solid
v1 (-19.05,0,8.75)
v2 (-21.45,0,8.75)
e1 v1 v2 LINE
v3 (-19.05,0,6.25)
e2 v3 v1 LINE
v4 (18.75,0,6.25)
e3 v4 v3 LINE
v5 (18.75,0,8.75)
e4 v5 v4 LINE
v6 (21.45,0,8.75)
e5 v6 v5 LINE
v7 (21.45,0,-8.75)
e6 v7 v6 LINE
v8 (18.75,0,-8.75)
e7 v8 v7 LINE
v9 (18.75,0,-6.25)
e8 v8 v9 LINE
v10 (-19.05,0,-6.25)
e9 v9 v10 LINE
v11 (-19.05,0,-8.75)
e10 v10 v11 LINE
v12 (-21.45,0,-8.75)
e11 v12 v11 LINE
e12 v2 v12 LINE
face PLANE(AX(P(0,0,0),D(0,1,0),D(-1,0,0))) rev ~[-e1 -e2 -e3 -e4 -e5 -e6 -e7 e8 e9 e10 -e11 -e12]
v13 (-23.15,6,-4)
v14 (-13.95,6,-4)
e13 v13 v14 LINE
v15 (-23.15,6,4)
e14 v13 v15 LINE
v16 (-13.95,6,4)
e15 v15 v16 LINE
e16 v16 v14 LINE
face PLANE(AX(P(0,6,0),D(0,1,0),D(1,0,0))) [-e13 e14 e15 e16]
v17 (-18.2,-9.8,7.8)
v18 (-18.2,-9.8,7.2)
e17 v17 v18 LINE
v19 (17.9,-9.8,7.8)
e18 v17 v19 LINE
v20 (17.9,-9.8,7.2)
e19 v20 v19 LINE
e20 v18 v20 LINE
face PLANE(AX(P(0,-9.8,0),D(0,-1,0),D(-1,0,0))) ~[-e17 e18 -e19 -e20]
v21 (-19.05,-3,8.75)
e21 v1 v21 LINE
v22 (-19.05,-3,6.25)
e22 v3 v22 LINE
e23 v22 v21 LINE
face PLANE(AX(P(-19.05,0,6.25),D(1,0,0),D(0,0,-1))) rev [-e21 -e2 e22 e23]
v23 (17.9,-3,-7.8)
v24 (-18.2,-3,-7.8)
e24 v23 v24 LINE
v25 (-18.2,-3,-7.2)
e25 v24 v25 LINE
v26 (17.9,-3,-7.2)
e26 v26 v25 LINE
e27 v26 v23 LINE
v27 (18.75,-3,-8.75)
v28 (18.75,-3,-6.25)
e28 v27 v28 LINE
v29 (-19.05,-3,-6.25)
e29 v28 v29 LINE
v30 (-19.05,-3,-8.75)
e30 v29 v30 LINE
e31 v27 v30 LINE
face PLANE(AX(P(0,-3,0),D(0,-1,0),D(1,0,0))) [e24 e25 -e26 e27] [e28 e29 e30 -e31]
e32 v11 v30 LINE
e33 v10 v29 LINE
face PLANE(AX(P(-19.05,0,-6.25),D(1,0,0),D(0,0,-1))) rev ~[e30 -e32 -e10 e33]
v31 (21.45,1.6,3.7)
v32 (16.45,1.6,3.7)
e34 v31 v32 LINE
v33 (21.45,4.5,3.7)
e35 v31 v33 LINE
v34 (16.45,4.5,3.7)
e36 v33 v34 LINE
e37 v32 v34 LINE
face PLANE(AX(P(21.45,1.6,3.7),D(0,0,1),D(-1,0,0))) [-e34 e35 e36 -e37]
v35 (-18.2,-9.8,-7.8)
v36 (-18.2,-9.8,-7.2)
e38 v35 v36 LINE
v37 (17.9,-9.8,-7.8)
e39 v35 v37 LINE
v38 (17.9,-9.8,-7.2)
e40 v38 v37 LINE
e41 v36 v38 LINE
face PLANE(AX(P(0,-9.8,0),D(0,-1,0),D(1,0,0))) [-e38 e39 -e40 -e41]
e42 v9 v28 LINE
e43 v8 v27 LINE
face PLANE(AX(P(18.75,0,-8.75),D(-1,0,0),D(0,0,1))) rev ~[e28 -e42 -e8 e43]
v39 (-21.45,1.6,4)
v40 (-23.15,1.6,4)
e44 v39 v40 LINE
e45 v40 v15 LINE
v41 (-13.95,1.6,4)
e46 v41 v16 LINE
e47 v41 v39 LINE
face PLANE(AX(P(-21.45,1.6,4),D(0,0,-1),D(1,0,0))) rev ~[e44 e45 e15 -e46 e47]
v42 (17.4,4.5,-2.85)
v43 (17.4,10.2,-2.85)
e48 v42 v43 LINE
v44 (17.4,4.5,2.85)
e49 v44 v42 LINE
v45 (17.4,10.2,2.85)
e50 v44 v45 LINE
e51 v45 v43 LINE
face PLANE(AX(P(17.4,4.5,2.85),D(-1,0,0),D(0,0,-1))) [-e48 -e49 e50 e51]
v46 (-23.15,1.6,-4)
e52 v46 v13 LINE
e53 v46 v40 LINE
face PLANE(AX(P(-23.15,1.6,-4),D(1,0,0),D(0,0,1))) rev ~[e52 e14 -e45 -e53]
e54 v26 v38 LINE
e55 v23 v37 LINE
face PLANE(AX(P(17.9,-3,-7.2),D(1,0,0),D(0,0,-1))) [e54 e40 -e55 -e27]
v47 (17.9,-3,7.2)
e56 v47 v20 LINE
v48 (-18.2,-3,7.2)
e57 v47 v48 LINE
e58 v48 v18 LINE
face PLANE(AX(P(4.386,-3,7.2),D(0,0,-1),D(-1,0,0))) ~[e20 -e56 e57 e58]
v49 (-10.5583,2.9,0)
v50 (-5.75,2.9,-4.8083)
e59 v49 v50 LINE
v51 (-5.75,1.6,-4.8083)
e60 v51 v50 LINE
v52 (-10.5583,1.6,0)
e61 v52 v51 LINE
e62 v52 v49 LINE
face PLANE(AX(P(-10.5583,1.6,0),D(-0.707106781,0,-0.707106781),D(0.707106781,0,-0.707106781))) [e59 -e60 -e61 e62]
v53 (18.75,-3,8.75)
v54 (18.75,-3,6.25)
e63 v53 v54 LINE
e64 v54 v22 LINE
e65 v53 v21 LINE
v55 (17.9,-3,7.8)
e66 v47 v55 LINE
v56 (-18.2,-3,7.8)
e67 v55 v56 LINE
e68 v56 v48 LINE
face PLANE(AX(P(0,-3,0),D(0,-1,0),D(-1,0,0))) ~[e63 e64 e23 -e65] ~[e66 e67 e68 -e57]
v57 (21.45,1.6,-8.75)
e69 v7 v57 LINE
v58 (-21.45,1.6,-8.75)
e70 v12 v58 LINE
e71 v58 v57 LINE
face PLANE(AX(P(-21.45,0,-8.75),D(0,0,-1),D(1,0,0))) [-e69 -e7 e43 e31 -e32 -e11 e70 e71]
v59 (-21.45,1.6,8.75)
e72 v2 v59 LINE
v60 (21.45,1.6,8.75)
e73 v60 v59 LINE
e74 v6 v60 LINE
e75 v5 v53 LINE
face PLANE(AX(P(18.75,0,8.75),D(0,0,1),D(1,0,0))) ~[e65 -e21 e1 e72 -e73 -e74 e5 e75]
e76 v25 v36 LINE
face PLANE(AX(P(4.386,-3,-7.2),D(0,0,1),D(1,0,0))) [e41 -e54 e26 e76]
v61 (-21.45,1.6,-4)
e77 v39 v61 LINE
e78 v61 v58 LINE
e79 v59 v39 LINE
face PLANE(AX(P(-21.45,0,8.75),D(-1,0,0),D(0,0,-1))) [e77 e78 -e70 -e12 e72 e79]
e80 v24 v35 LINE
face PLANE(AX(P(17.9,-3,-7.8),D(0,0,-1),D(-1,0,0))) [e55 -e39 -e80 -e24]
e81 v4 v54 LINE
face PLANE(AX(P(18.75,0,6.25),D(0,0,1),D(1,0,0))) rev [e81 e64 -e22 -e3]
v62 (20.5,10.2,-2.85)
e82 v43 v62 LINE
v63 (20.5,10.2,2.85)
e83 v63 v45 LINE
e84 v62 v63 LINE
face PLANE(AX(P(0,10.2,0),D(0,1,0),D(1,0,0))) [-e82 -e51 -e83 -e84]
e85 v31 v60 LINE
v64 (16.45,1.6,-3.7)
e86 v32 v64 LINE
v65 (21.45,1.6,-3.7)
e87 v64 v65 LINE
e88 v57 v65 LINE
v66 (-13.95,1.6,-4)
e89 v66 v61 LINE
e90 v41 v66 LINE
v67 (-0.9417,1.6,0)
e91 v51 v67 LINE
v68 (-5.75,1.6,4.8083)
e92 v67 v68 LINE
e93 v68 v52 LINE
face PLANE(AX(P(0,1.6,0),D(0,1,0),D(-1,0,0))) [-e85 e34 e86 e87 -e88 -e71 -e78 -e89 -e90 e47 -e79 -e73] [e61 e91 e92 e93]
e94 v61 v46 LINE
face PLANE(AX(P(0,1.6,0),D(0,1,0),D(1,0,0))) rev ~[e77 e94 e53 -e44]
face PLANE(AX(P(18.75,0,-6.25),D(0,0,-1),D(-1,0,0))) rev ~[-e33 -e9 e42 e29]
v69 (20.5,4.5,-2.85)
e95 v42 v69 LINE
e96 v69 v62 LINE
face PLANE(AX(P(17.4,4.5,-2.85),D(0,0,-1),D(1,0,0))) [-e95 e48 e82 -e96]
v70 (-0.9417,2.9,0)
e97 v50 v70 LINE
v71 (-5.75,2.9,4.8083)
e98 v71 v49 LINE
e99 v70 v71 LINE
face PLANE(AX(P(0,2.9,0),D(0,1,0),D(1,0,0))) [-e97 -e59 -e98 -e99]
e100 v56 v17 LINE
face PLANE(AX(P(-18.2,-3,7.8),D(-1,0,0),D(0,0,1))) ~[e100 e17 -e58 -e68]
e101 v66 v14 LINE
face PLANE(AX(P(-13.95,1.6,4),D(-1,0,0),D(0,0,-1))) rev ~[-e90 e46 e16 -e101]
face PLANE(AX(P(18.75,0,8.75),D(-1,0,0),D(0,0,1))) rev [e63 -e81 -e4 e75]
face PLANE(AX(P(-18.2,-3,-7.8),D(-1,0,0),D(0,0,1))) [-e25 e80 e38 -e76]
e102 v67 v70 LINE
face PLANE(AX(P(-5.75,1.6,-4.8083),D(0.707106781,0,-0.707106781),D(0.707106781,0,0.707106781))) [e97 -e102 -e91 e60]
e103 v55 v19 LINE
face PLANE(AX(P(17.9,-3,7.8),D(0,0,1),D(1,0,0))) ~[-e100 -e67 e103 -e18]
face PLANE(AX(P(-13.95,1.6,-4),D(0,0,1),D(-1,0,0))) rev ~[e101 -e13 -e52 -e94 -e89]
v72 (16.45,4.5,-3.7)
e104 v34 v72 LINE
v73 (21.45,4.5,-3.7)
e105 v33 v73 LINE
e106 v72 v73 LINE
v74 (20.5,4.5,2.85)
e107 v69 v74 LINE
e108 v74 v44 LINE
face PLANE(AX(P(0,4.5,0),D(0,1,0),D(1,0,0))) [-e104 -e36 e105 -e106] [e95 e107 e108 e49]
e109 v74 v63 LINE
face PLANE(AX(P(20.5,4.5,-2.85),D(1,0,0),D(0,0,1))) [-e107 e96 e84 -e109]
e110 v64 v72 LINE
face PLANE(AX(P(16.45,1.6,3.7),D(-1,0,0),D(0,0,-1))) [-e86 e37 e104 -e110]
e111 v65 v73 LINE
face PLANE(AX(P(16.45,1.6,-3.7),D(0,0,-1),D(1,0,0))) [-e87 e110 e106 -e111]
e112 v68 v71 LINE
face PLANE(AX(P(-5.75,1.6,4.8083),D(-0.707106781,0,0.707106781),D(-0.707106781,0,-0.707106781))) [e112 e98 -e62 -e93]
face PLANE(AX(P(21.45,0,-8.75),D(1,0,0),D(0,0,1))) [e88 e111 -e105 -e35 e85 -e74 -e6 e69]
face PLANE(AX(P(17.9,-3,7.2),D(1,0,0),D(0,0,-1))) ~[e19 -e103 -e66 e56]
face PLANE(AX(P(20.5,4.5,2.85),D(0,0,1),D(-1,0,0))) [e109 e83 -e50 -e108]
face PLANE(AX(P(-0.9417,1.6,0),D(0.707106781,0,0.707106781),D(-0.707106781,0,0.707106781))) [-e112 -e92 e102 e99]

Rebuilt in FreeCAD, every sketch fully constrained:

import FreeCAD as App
import Part
import Sketcher

doc = App.newDocument("Part")
body = doc.addObject("PartDesign::Body", "Body")

sketch1 = body.newObject("Sketcher::SketchObject", "Sketch")
sketch1.AttachmentSupport = (doc.getObject("XZ_Plane"), [""])
sketch1.MapMode = "FlatFace"
sketch1.addGeometry([
    Part.LineSegment(App.Vector(-21, 9, 0), App.Vector(21, 9, 0)),
    Part.LineSegment(App.Vector(21, 9, 0), App.Vector(21, -9, 0)),
    Part.LineSegment(App.Vector(21, -9, 0), App.Vector(-21, -9, 0)),
    Part.LineSegment(App.Vector(-21, -9, 0), App.Vector(-21, 9, 0)),
], False)
sketch1.addConstraint([
    Sketcher.Constraint("Coincident", 0, 2, 1, 1),
    Sketcher.Constraint("Coincident", 1, 2, 2, 1),
    Sketcher.Constraint("Coincident", 2, 2, 3, 1),
    Sketcher.Constraint("Coincident", 3, 2, 0, 1),
    Sketcher.Constraint("Horizontal", 0),
    Sketcher.Constraint("Vertical", 1),
    Sketcher.Constraint("Horizontal", 2),
    Sketcher.Constraint("Vertical", 3),
    Sketcher.Constraint("Symmetric", 0, 2, 2, 2, -1, 1),
    Sketcher.Constraint("DistanceX", 0, 1, 0, 2, 42.9),
    Sketcher.Constraint("DistanceY", 1, 2, 1, 1, 17.5),
])
pad1 = body.newObject("PartDesign::Pad", "Pad")
pad1.Profile = sketch1
pad1.Length = 1.6
pad1.Reversed = True

sketch2 = body.newObject("Sketcher::SketchObject", "Sketch001")
sketch2.AttachmentSupport = (doc.getObject("XZ_Plane"), [""])
sketch2.MapMode = "FlatFace"
sketch2.addGeometry([
    Part.LineSegment(App.Vector(-19.1, -8.8, 0), App.Vector(18.8, -8.8, 0)),
    Part.LineSegment(App.Vector(18.8, -8.8, 0), App.Vector(18.8, -6.2, 0)),
    Part.LineSegment(App.Vector(18.8, -6.2, 0), App.Vector(-19.1, -6.2, 0)),
    Part.LineSegment(App.Vector(-19.1, -6.2, 0), App.Vector(-19.1, -8.8, 0)),
], False)
sketch2.addConstraint([
    Sketcher.Constraint("Coincident", 0, 2, 1, 1),
    Sketcher.Constraint("Coincident", 1, 2, 2, 1),
    Sketcher.Constraint("Coincident", 2, 2, 3, 1),
    Sketcher.Constraint("Coincident", 3, 2, 0, 1),
    Sketcher.Constraint("Horizontal", 0),
    Sketcher.Constraint("Vertical", 1),
    Sketcher.Constraint("Horizontal", 2),
    Sketcher.Constraint("Vertical", 3),
    Sketcher.Constraint("DistanceX", 0, 1, 0, 2, 37.8),
    Sketcher.Constraint("DistanceY", 1, 1, 1, 2, 2.5),
    Sketcher.Constraint("DistanceX", -1, 1, 0, 2, 18.75),
    Sketcher.Constraint("DistanceY", 0, 2, -1, 1, 8.75),
])
pad2 = body.newObject("PartDesign::Pad", "Pad001")
pad2.Profile = sketch2
pad2.Length = 3

sketch3 = body.newObject("Sketcher::SketchObject", "Sketch002")
sketch3.AttachmentSupport = (doc.getObject("XZ_Plane"), [""])
sketch3.MapMode = "FlatFace"
sketch3.AttachmentOffset = App.Placement(App.Vector(0, 0, 3), App.Rotation())
sketch3.addGeometry([
    Part.LineSegment(App.Vector(17.9, -7.2, 0), App.Vector(-18.2, -7.2, 0)),
    Part.LineSegment(App.Vector(-18.2, -7.2, 0), App.Vector(-18.2, -7.8, 0)),
    Part.LineSegment(App.Vector(-18.2, -7.8, 0), App.Vector(17.9, -7.8, 0)),
    Part.LineSegment(App.Vector(17.9, -7.8, 0), App.Vector(17.9, -7.2, 0)),
], False)
sketch3.addConstraint([
    Sketcher.Constraint("Coincident", 0, 2, 1, 1),
    Sketcher.Constraint("Coincident", 1, 2, 2, 1),
    Sketcher.Constraint("Coincident", 2, 2, 3, 1),
    Sketcher.Constraint("Coincident", 3, 2, 0, 1),
    Sketcher.Constraint("Horizontal", 0),
    Sketcher.Constraint("Vertical", 1),
    Sketcher.Constraint("Horizontal", 2),
    Sketcher.Constraint("Vertical", 3),
    Sketcher.Constraint("DistanceX", 0, 2, 0, 1, 36.1),
    Sketcher.Constraint("DistanceY", 1, 2, 1, 1, 0.6),
    Sketcher.Constraint("DistanceX", 0, 2, -1, 1, 18.2),
    Sketcher.Constraint("DistanceY", 0, 2, -1, 1, 7.2),
])
pad3 = body.newObject("PartDesign::Pad", "Pad002")
pad3.Profile = sketch3
pad3.Length = 6.8
doc.recompute()

mirrored = body.newObject("PartDesign::Mirrored", "Mirrored")
mirrored.Originals = [pad3, pad2]
mirrored.MirrorPlane = (doc.getObject("XY_Plane"), [""])
body.Tip = mirrored

sketch4 = body.newObject("Sketcher::SketchObject", "Sketch003")
sketch4.AttachmentSupport = (doc.getObject("XZ_Plane"), [""])
sketch4.MapMode = "FlatFace"
sketch4.AttachmentOffset = App.Placement(App.Vector(0, 0, -1.6), App.Rotation())
sketch4.addGeometry([
    Part.LineSegment(App.Vector(-6, -5, 0), App.Vector(-11, 0, 0)),
    Part.LineSegment(App.Vector(-11, 0, 0), App.Vector(-6, 5, 0)),
    Part.LineSegment(App.Vector(-6, 5, 0), App.Vector(-1, 0, 0)),
    Part.LineSegment(App.Vector(-1, 0, 0), App.Vector(-6, -5, 0)),
], False)
sketch4.addConstraint([
    Sketcher.Constraint("Coincident", 0, 2, 1, 1),
    Sketcher.Constraint("Coincident", 1, 2, 2, 1),
    Sketcher.Constraint("Coincident", 2, 2, 3, 1),
    Sketcher.Constraint("Coincident", 3, 2, 0, 1),
    Sketcher.Constraint("Symmetric", 1, 2, 3, 2, -1),
    Sketcher.Constraint("PointOnObject", 0, 2, -1),
    Sketcher.Constraint("PointOnObject", 2, 2, -1),
    Sketcher.Constraint("Perpendicular", 0, 1),
    Sketcher.Constraint("Perpendicular", 1, 2),
    Sketcher.Constraint("Distance", 0, 6.8),
    Sketcher.Constraint("DistanceX", 1, 2, -1, 1, 5.75),
])
pad4 = body.newObject("PartDesign::Pad", "Pad003")
pad4.Profile = sketch4
pad4.Length = 1.3
pad4.Reversed = True

sketch5 = body.newObject("Sketcher::SketchObject", "Sketch004")
sketch5.AttachmentSupport = (doc.getObject("XZ_Plane"), [""])
sketch5.MapMode = "FlatFace"
sketch5.AttachmentOffset = App.Placement(App.Vector(0, 0, -1.6), App.Rotation())
sketch5.addGeometry([
    Part.LineSegment(App.Vector(16, 4, 0), App.Vector(21, 4, 0)),
    Part.LineSegment(App.Vector(21, 4, 0), App.Vector(21, -4, 0)),
    Part.LineSegment(App.Vector(21, -4, 0), App.Vector(16, -4, 0)),
    Part.LineSegment(App.Vector(16, -4, 0), App.Vector(16, 4, 0)),
], False)
sketch5.addConstraint([
    Sketcher.Constraint("Coincident", 0, 2, 1, 1),
    Sketcher.Constraint("Coincident", 1, 2, 2, 1),
    Sketcher.Constraint("Coincident", 2, 2, 3, 1),
    Sketcher.Constraint("Coincident", 3, 2, 0, 1),
    Sketcher.Constraint("Horizontal", 0),
    Sketcher.Constraint("Vertical", 1),
    Sketcher.Constraint("Horizontal", 2),
    Sketcher.Constraint("Vertical", 3),
    Sketcher.Constraint("DistanceX", 0, 1, 0, 2, 5.0),
    Sketcher.Constraint("DistanceY", 1, 2, 1, 1, 7.4),
    Sketcher.Constraint("DistanceY", -1, 1, 0, 2, 3.7),
    Sketcher.Constraint("DistanceX", -1, 1, 0, 2, 21.45),
])
pad5 = body.newObject("PartDesign::Pad", "Pad004")
pad5.Profile = sketch5
pad5.Length = 2.9
pad5.Reversed = True

sketch6 = body.newObject("Sketcher::SketchObject", "Sketch005")
sketch6.AttachmentSupport = (doc.getObject("XZ_Plane"), [""])
sketch6.MapMode = "FlatFace"
sketch6.AttachmentOffset = App.Placement(App.Vector(0, 0, -4.5), App.Rotation())
sketch6.addGeometry([
    Part.LineSegment(App.Vector(17.4, 2.9, 0), App.Vector(20.5, 2.9, 0)),
    Part.LineSegment(App.Vector(20.5, 2.9, 0), App.Vector(20.5, -2.9, 0)),
    Part.LineSegment(App.Vector(20.5, -2.9, 0), App.Vector(17.4, -2.9, 0)),
    Part.LineSegment(App.Vector(17.4, -2.9, 0), App.Vector(17.4, 2.9, 0)),
], False)
sketch6.addConstraint([
    Sketcher.Constraint("Coincident", 0, 2, 1, 1),
    Sketcher.Constraint("Coincident", 1, 2, 2, 1),
    Sketcher.Constraint("Coincident", 2, 2, 3, 1),
    Sketcher.Constraint("Coincident", 3, 2, 0, 1),
    Sketcher.Constraint("Horizontal", 0),
    Sketcher.Constraint("Vertical", 1),
    Sketcher.Constraint("Horizontal", 2),
    Sketcher.Constraint("Vertical", 3),
    Sketcher.Constraint("DistanceX", 0, 1, 0, 2, 3.1),
    Sketcher.Constraint("DistanceY", 1, 2, 1, 1, 5.7),
    Sketcher.Constraint("DistanceX", -1, 1, 0, 2, 20.5),
    Sketcher.Constraint("DistanceY", -1, 1, 0, 2, 2.85),
])
pad6 = body.newObject("PartDesign::Pad", "Pad005")
pad6.Profile = sketch6
pad6.Length = 5.7
pad6.Reversed = True

sketch7 = body.newObject("Sketcher::SketchObject", "Sketch006")
sketch7.AttachmentSupport = (doc.getObject("XZ_Plane"), [""])
sketch7.MapMode = "FlatFace"
sketch7.AttachmentOffset = App.Placement(App.Vector(0, 0, -1.6), App.Rotation())
sketch7.addGeometry([
    Part.LineSegment(App.Vector(-14, -4, 0), App.Vector(-23, -4, 0)),
    Part.LineSegment(App.Vector(-23, -4, 0), App.Vector(-23, 4, 0)),
    Part.LineSegment(App.Vector(-23, 4, 0), App.Vector(-14, 4, 0)),
    Part.LineSegment(App.Vector(-14, 4, 0), App.Vector(-14, -4, 0)),
], False)
sketch7.addConstraint([
    Sketcher.Constraint("Coincident", 0, 2, 1, 1),
    Sketcher.Constraint("Coincident", 1, 2, 2, 1),
    Sketcher.Constraint("Coincident", 2, 2, 3, 1),
    Sketcher.Constraint("Coincident", 3, 2, 0, 1),
    Sketcher.Constraint("Horizontal", 0),
    Sketcher.Constraint("Vertical", 1),
    Sketcher.Constraint("Horizontal", 2),
    Sketcher.Constraint("Vertical", 3),
    Sketcher.Constraint("DistanceY", 1, 1, 1, 2, 8.0),
    Sketcher.Constraint("DistanceX", 0, 2, 0, 1, 9.2),
    Sketcher.Constraint("DistanceY", 0, 2, -1, 1, 4.0),
    Sketcher.Constraint("DistanceX", 0, 2, -1, 1, 23.15),
])
pad7 = body.newObject("PartDesign::Pad", "Pad006")
pad7.Profile = sketch7
pad7.Length = 4.4
pad7.Reversed = True

doc.recompute()
